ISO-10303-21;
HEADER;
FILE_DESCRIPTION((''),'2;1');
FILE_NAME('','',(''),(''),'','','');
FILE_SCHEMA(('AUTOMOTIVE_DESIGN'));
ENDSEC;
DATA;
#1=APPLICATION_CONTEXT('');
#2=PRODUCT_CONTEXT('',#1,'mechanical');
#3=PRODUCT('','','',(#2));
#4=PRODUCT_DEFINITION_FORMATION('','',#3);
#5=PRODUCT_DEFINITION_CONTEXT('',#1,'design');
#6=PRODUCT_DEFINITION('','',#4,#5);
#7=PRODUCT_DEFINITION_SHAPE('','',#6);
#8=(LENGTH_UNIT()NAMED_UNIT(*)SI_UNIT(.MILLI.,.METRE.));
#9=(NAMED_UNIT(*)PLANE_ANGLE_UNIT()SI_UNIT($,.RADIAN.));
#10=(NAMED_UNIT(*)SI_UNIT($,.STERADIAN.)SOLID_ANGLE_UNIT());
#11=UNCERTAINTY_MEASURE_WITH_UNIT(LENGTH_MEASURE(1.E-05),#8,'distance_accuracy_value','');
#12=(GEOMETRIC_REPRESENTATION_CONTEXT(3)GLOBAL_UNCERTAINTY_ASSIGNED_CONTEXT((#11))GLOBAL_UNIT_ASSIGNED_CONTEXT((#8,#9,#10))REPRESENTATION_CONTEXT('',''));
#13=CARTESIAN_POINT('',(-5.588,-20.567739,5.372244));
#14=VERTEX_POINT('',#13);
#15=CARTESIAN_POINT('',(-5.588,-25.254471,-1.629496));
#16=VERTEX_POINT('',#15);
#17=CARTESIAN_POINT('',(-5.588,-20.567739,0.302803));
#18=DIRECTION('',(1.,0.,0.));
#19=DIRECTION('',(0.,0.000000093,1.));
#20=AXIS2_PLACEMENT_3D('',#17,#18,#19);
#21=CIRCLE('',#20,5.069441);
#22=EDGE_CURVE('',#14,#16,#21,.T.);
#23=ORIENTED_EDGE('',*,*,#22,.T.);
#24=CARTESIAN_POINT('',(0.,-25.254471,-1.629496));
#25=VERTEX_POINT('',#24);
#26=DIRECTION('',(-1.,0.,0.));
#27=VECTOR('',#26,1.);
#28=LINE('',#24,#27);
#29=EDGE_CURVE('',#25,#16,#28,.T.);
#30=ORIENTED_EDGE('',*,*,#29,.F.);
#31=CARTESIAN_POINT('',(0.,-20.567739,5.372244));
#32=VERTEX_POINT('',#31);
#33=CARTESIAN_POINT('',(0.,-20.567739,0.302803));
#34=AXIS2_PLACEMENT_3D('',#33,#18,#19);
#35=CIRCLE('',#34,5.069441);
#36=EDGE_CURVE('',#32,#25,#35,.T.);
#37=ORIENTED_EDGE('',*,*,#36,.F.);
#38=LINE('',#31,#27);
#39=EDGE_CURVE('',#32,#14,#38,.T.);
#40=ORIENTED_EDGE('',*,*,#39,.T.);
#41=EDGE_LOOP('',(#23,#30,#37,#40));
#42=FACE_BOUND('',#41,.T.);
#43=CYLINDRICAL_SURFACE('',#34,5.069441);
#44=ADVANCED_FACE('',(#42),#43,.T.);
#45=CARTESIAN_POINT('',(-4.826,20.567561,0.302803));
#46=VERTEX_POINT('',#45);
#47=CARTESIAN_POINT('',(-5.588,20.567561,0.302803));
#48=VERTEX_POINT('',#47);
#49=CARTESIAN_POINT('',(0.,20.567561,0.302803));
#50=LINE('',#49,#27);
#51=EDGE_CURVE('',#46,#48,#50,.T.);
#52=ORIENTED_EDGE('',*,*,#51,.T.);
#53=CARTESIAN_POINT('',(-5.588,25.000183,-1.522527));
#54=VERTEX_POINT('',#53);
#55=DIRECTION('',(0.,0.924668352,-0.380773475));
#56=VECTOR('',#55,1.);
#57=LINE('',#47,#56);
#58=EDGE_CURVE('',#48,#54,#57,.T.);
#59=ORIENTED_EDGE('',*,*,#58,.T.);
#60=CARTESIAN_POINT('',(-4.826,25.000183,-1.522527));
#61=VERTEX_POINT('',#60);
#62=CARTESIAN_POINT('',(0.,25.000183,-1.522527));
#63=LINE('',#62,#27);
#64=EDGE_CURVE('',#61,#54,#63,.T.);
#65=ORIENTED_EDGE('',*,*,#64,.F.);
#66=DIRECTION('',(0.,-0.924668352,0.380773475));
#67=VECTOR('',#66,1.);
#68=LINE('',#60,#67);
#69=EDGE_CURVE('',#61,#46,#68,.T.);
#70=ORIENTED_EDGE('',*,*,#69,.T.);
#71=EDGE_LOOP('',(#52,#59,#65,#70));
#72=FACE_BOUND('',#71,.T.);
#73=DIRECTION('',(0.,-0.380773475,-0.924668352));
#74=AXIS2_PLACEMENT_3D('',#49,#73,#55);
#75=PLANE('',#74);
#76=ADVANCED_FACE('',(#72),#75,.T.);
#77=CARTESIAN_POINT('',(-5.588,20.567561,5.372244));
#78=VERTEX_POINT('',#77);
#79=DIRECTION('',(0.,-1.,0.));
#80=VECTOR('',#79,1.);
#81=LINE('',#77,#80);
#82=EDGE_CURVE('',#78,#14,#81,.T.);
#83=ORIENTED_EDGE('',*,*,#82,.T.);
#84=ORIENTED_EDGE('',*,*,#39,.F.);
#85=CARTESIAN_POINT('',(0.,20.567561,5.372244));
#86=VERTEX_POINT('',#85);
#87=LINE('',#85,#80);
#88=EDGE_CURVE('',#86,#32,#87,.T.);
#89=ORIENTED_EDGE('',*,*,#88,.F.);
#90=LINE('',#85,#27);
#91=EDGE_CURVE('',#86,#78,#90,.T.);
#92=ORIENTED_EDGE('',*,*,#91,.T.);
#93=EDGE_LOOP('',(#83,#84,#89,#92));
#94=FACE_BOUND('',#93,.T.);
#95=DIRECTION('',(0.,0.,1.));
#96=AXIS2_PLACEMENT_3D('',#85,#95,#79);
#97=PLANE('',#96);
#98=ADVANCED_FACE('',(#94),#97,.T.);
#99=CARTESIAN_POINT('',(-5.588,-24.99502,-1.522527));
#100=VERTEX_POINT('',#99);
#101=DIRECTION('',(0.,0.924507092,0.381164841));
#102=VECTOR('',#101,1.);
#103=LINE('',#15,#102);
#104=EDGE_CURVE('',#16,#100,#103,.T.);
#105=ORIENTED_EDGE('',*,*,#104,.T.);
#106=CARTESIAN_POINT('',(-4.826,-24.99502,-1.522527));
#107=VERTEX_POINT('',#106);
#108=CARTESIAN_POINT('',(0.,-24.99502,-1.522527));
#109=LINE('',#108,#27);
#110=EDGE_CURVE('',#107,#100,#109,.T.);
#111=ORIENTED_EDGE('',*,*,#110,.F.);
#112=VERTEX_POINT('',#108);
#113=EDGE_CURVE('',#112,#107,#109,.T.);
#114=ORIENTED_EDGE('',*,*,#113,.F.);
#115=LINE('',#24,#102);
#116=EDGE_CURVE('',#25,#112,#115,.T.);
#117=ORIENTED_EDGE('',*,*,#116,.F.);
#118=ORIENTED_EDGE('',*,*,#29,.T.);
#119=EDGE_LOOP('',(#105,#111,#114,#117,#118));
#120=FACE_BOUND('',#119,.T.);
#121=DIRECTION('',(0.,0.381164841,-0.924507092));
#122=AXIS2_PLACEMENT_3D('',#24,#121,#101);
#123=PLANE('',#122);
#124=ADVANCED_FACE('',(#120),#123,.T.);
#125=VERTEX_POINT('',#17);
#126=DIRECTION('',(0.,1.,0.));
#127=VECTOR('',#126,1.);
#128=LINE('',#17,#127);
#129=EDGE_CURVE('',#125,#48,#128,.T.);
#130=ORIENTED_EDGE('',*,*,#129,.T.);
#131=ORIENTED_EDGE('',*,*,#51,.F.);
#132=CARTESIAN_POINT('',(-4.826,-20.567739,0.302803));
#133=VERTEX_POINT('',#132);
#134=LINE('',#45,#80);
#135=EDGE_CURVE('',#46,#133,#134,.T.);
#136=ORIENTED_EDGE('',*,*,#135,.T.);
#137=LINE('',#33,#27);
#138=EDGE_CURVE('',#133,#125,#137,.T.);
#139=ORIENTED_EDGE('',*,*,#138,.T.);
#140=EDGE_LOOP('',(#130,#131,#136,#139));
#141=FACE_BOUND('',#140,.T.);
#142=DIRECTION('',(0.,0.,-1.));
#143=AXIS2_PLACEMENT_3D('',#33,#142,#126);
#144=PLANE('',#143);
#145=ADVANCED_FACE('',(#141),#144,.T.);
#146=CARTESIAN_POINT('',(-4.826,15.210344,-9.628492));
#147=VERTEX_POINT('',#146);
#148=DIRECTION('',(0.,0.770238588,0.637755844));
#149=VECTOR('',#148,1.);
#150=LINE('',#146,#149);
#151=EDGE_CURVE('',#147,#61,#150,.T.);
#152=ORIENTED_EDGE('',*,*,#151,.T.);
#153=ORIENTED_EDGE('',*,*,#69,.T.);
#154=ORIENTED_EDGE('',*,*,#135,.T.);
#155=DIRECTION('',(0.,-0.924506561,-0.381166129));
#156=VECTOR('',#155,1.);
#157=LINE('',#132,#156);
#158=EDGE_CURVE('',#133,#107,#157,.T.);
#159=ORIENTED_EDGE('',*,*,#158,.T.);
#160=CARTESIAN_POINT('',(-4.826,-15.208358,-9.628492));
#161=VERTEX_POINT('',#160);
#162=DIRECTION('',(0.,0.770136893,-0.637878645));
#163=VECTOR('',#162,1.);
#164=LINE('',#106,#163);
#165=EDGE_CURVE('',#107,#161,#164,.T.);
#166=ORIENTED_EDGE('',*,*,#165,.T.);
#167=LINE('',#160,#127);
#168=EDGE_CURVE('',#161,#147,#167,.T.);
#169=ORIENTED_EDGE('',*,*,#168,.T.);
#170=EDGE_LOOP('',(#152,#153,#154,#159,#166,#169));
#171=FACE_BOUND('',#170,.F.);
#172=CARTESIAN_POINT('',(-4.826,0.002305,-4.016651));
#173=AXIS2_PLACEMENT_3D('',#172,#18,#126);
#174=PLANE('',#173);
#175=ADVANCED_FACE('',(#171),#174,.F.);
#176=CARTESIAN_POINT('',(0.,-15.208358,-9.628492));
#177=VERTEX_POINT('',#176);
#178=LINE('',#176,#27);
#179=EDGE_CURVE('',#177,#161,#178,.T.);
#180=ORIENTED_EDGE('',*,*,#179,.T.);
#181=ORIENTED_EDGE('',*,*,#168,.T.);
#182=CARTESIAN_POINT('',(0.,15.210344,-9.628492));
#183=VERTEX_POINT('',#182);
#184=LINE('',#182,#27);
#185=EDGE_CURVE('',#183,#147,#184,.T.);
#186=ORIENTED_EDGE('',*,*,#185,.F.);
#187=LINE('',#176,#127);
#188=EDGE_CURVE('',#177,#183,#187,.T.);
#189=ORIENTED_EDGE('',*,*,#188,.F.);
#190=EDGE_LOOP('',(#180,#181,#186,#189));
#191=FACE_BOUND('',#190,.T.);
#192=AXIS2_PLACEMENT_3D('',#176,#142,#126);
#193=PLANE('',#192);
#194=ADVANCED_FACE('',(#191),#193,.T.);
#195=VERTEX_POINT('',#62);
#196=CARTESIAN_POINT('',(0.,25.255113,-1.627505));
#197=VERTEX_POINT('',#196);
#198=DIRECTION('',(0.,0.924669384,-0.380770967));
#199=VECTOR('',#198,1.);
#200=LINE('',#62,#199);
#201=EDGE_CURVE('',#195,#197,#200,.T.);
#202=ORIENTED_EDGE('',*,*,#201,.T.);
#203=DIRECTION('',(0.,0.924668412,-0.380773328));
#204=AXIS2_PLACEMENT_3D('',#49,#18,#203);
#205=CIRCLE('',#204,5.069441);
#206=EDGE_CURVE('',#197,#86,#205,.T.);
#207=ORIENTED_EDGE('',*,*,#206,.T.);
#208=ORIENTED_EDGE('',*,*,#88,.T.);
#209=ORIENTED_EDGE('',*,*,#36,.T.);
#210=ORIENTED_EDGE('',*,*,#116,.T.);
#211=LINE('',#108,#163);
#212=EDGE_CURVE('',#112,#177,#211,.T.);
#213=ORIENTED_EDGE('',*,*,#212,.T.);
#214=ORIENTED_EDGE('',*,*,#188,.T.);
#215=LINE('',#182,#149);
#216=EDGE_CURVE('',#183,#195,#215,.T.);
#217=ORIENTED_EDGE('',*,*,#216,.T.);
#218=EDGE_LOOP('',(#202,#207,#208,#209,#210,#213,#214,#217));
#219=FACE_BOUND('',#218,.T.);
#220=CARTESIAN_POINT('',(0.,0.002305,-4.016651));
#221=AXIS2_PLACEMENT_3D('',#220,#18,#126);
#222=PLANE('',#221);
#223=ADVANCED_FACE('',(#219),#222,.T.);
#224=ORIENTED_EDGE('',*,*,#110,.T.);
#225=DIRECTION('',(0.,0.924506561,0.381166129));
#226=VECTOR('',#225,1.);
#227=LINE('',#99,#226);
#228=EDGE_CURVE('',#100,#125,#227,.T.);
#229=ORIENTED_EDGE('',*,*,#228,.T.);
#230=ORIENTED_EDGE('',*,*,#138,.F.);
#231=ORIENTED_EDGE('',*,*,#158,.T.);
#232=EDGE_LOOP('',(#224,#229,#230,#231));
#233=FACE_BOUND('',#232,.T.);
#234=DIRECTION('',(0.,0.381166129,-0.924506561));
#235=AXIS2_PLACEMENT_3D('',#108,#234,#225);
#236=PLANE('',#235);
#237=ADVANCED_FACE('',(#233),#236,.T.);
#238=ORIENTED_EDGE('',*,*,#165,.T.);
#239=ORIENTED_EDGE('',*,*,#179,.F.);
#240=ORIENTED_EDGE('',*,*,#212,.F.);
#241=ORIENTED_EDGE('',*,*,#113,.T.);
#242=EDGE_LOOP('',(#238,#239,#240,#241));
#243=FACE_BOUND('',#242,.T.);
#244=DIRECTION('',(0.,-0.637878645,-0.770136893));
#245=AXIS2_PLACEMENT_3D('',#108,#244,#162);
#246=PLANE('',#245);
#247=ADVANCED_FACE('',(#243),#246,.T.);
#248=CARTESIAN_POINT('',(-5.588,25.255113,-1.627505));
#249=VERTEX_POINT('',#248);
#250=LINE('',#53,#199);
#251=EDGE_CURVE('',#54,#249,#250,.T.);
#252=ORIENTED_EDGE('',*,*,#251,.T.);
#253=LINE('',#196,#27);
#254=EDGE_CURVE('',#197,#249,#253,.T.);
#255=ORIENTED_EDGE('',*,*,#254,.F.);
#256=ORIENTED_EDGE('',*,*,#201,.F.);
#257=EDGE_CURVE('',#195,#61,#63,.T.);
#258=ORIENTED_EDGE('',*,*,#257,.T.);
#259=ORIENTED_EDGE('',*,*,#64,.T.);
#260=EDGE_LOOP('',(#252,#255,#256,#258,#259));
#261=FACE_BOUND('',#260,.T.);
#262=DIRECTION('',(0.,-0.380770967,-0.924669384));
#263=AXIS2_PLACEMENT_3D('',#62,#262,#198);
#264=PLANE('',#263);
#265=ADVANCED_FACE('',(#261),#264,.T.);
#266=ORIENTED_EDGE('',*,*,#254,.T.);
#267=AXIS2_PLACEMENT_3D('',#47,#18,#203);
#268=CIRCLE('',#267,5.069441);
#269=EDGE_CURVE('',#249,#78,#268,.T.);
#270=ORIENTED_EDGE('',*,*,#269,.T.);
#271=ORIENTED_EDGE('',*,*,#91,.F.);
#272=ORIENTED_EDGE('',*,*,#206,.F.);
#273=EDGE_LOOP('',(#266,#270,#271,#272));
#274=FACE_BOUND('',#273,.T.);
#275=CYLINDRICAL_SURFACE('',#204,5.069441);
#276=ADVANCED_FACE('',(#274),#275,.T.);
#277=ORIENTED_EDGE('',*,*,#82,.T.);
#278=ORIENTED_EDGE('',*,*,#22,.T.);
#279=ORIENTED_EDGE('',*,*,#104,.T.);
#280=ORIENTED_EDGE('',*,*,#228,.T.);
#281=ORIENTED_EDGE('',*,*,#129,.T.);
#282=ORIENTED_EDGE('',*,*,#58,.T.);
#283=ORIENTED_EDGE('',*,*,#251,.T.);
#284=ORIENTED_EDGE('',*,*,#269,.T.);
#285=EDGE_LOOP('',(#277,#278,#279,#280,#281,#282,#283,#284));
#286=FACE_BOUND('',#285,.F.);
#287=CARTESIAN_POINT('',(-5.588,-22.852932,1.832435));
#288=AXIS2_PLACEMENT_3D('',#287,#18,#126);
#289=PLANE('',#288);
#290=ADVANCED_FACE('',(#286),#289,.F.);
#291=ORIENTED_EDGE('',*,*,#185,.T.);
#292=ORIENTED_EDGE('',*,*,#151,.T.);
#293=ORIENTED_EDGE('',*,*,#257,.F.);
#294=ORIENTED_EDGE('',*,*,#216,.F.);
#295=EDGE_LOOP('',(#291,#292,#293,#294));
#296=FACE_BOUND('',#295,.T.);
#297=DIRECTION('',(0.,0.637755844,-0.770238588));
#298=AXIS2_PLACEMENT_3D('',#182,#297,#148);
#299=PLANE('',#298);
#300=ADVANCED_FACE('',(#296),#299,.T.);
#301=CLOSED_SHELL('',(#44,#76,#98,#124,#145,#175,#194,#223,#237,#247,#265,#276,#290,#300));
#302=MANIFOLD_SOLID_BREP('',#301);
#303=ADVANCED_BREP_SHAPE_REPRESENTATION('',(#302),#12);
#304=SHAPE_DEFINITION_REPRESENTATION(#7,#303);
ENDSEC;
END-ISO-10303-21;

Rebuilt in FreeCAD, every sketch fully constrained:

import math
import FreeCAD as App
import Part
import Sketcher
Q = App.Units.Quantity

doc = App.newDocument("Part")
body = doc.addObject("PartDesign::Body", "Body")

sketch1 = doc.addObject("Sketcher::SketchObject", "Sketch")
body.addObject(sketch1)
sketch1.AttachmentSupport = (doc.YZ_Plane, [""])
sketch1.MapMode = "FlatFace"
sketch1.addGeometry([
    Part.ArcOfCircle(Part.Circle(App.Vector(-20.567739, 0.302803, 0), App.Vector(0, 0, 1), 5.069441), math.radians(89.999995), math.radians(202.405932)),
    Part.LineSegment(App.Vector(-25.254471, -1.629496, 0), App.Vector(-24.99502, -1.522527, 0)),
    Part.LineSegment(App.Vector(-24.99502, -1.522527, 0), App.Vector(-20.567739, 0.302803, 0)),
    Part.LineSegment(App.Vector(-20.567739, 0.302803, 0), App.Vector(20.567561, 0.302803, 0)),
    Part.LineSegment(App.Vector(20.567561, 0.302803, 0), App.Vector(25.000183, -1.522527, 0)),
    Part.LineSegment(App.Vector(25.000183, -1.522527, 0), App.Vector(25.255113, -1.627505, 0)),
    Part.ArcOfCircle(Part.Circle(App.Vector(20.567561, 0.302803, 0), App.Vector(0, 0, 1), 5.069441), math.radians(-22.381593), math.radians(90)),
    Part.LineSegment(App.Vector(20.567561, 5.372244, 0), App.Vector(-20.567739, 5.372244, 0)),
], False)
sketch1.addConstraint([
    Sketcher.Constraint("Coincident", 0, 2, 1, 1),
    Sketcher.Constraint("Coincident", 1, 2, 2, 1),
    Sketcher.Constraint("Coincident", 2, 2, 3, 1),
    Sketcher.Constraint("Coincident", 3, 2, 4, 1),
    Sketcher.Constraint("Coincident", 4, 2, 5, 1),
    Sketcher.Constraint("Coincident", 5, 2, 6, 1),
    Sketcher.Constraint("Tangent", 6, 2, 7, 1),
    Sketcher.Constraint("Tangent", 7, 2, 0, 1),
    Sketcher.Constraint("Horizontal", 3),
    Sketcher.Constraint("Horizontal", 7),
    Sketcher.Constraint("Coincident", 2, 2, 0, 3),
    Sketcher.Constraint("Coincident", 3, 2, 6, 3),
    Sketcher.Constraint("Parallel", 1, 2),
    Sketcher.Constraint("Horizontal", 1, 2, 4, 2),
    Sketcher.Constraint("DistanceX", 3, 1, 3, 2, Q("1.6195 in")),
    Sketcher.Constraint("Radius", 0, 5.069441),
    Sketcher.Constraint("Distance", 5, 0.275699),
    Sketcher.Constraint("DistanceY", 0, 2, 0, 3, 1.932299),
    Sketcher.Constraint("DistanceX", 0, 3, -1, 1, 20.567739),
    Sketcher.Constraint("DistanceX", 1, 2, -1, 1, 24.99502),
    Sketcher.Constraint("DistanceX", 4, 2, 5, 2, 0.25493),
    Sketcher.Constraint("DistanceY", -1, 1, 0, 3, 0.302803),
])
pad1 = doc.addObject("PartDesign::Pad", "Pad")
body.addObject(pad1)
pad1.Profile = sketch1
pad1.Length = Q("0.22 in")
pad1.Reversed = True

sketch2 = doc.addObject("Sketcher::SketchObject", "Sketch001")
body.addObject(sketch2)
sketch2.AttachmentSupport = (doc.YZ_Plane, [""])
sketch2.MapMode = "FlatFace"
sketch2.addGeometry([
    Part.LineSegment(App.Vector(20.567561, 0.302803, 0), App.Vector(-20.567739, 0.302803, 0)),
    Part.LineSegment(App.Vector(-20.567739, 0.302803, 0), App.Vector(-24.99502, -1.522527, 0)),
    Part.LineSegment(App.Vector(-24.99502, -1.522527, 0), App.Vector(-15.208358, -9.628492, 0)),
    Part.LineSegment(App.Vector(-15.208358, -9.628492, 0), App.Vector(15.210344, -9.628492, 0)),
    Part.LineSegment(App.Vector(15.210344, -9.628492, 0), App.Vector(25.000183, -1.522527, 0)),
    Part.LineSegment(App.Vector(25.000183, -1.522527, 0), App.Vector(20.567561, 0.302803, 0)),
], False)
sketch2.addConstraint([
    Sketcher.Constraint("Coincident", 0, 2, 1, 1),
    Sketcher.Constraint("Coincident", 1, 2, 2, 1),
    Sketcher.Constraint("Coincident", 2, 2, 3, 1),
    Sketcher.Constraint("Coincident", 3, 2, 4, 1),
    Sketcher.Constraint("Coincident", 4, 2, 5, 1),
    Sketcher.Constraint("Coincident", 5, 2, 0, 1),
    Sketcher.Constraint("Horizontal", 0),
    Sketcher.Constraint("Horizontal", 3),
    Sketcher.Constraint("Horizontal", 1, 2, 4, 2),
    Sketcher.Constraint("DistanceX", 0, 2, 0, 1, Q("1.6195 in")),
    Sketcher.Constraint("DistanceX", 3, 1, 3, 2, 30.418702),
    Sketcher.Constraint("Distance", 2, 12.707691),
    Sketcher.Constraint("Distance", 4, 12.710138),
    Sketcher.Constraint("DistanceX", 0, 2, -1, 1, 20.567739),
    Sketcher.Constraint("DistanceX", 1, 2, -1, 1, 24.99502),
    Sketcher.Constraint("DistanceY", 1, 2, 0, 2, 1.82533),
    Sketcher.Constraint("DistanceX", 0, 2, 2, 2, 5.359381),
    Sketcher.Constraint("DistanceY", -1, 1, 0, 2, 0.302803),
])
pad2 = doc.addObject("PartDesign::Pad", "Pad001")
body.addObject(pad2)
pad2.Profile = sketch2
pad2.Length = Q("0.19 in")
pad2.Reversed = True

doc.recompute()
